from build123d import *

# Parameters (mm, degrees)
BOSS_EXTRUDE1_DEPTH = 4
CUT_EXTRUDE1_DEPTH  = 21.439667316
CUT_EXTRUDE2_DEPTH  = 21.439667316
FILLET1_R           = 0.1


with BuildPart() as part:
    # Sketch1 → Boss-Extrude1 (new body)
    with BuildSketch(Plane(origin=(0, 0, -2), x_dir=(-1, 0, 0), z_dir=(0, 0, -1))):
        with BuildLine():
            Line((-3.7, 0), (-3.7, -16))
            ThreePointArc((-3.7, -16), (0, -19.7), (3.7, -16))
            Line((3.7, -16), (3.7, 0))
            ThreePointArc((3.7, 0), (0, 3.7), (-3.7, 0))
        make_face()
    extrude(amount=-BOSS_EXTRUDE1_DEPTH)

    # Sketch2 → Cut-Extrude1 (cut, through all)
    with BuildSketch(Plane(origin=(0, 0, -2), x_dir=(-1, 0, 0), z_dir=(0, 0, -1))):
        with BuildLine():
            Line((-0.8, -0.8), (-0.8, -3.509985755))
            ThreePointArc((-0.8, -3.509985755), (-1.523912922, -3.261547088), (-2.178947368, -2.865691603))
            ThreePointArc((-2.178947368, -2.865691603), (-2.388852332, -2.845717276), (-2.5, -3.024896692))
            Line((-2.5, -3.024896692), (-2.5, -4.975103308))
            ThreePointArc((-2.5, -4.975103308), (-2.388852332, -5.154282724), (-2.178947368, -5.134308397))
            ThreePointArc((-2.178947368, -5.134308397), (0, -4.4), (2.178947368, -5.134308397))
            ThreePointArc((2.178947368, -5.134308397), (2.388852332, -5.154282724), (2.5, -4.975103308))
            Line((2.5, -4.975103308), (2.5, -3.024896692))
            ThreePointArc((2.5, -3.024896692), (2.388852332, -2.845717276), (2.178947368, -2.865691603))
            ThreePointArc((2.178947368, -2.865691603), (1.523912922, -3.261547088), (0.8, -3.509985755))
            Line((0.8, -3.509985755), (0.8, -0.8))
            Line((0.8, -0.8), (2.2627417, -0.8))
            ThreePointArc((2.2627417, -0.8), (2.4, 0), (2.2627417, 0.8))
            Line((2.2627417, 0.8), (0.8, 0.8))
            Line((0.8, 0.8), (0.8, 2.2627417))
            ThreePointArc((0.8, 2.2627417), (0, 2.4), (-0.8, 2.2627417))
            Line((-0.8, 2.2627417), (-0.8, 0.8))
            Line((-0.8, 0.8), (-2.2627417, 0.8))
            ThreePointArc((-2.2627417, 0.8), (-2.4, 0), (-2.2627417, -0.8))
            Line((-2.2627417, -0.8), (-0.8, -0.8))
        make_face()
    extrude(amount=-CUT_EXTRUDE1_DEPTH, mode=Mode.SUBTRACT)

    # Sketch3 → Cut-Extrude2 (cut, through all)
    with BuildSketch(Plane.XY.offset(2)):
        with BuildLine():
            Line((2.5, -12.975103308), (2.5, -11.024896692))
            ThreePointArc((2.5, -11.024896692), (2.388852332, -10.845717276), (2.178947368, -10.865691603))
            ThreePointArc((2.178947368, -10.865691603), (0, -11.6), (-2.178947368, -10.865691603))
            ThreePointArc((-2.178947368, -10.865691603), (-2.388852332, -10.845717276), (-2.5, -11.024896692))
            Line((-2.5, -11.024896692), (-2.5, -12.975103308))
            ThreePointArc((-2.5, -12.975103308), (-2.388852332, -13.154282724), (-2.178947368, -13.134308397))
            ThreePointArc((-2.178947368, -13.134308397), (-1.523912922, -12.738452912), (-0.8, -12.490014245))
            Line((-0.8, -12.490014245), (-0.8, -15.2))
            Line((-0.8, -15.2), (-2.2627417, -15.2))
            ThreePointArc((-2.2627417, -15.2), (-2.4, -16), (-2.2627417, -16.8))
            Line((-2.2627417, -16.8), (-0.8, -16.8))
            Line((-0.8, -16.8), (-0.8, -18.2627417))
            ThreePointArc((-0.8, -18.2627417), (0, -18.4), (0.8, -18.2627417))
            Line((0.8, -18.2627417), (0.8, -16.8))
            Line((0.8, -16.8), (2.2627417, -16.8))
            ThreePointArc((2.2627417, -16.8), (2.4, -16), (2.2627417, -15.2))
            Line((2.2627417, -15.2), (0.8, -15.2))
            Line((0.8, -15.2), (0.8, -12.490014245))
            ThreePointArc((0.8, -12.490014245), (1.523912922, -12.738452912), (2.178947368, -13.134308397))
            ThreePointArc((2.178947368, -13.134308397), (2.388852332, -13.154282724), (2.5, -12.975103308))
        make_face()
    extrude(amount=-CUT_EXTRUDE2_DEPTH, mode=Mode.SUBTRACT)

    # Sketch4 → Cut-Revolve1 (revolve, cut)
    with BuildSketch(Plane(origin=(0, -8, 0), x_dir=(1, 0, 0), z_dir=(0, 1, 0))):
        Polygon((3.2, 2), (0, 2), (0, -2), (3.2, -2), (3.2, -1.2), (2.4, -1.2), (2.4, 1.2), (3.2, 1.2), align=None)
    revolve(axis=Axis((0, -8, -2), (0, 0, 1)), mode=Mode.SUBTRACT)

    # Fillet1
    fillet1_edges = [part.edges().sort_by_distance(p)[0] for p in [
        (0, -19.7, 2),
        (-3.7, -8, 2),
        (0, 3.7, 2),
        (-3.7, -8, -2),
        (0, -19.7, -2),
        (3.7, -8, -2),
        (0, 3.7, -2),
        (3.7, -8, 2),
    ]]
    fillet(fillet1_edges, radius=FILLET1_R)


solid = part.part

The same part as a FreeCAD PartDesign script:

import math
import FreeCAD as App
import Part
import Sketcher
from FreeCAD import Vector


def edges_at(feature, points):
    """Names of the edges that pass closest to the given points."""
    edges = feature.Shape.Edges
    near = lambda p: min(range(len(edges)), key=lambda i: edges[i].distToShape(Part.Vertex(*p))[0])
    return sorted({f"Edge{near(p) + 1}" for p in points})

doc = App.newDocument("Part")
body = doc.addObject("PartDesign::Body", "Body")

# Sketch on XY plane
sketch1 = body.newObject("Sketcher::SketchObject", "Sketch")
sketch1.AttachmentSupport = (doc.getObject("XY_Plane"), [""])
sketch1.MapMode = "FlatFace"
sketch1.AttachmentOffset = App.Placement(Vector(0, 0, -2), App.Rotation())
sketch1.addGeometry([
    Part.LineSegment(Vector(3.7, 0, 0), Vector(3.7, -16, 0)),
    Part.ArcOfCircle(Part.Circle(Vector(0, -16, 0), Vector(0, 0, 1), 3.7), math.radians(180), math.radians(360)),
    Part.LineSegment(Vector(-3.7, -16, 0), Vector(-3.7, 0, 0)),
    Part.ArcOfCircle(Part.Circle(Vector(0, 0, 0), Vector(0, 0, 1), 3.7), math.radians(0), math.radians(180)),
], False)
sketch1.addConstraint([
    Sketcher.Constraint("Tangent", 0, 2, 1, 2),
    Sketcher.Constraint("Tangent", 1, 1, 2, 1),
    Sketcher.Constraint("Tangent", 2, 2, 3, 2),
    Sketcher.Constraint("Tangent", 3, 1, 0, 1),
    Sketcher.Constraint("Vertical", 0),
    Sketcher.Constraint("Vertical", 2),
    Sketcher.Constraint("Coincident", 3, 3, -1, 1),
    Sketcher.Constraint("Radius", 1, 3.7),
    Sketcher.Constraint("DistanceY", 0, 2, 0, 1, 16.0),
])
pad1 = body.newObject("PartDesign::Pad", "Pad")
pad1.Profile = sketch1
pad1.Length = 4

# Sketch on XY plane
sketch2 = body.newObject("Sketcher::SketchObject", "Sketch001")
sketch2.AttachmentSupport = (doc.getObject("XY_Plane"), [""])
sketch2.MapMode = "FlatFace"
sketch2.AttachmentOffset = App.Placement(Vector(0, 0, -2), App.Rotation())
sketch2.addGeometry([
    Part.LineSegment(Vector(0.8, -0.8, 0), Vector(0.8, -3.51, 0)),  # 0
    Part.ArcOfCircle(Part.Circle(Vector(0, 0, 0), Vector(0, 0, 1), 3.6), math.radians(-77), math.radians(-53)),  # 1
    Part.ArcOfCircle(Part.Circle(Vector(2.3, -3.02, 0), Vector(0, 0, 1), 0.2), math.radians(0), math.radians(127)),  # 2
    Part.LineSegment(Vector(2.5, -3.02, 0), Vector(2.5, -4.98, 0)),  # 3
    Part.ArcOfCircle(Part.Circle(Vector(2.3, -4.98, 0), Vector(0, 0, 1), 0.2), math.radians(-127), math.radians(0)),  # 4
    Part.ArcOfCircle(Part.Circle(Vector(0, -8, 0), Vector(0, 0, 1), 3.6), math.radians(53), math.radians(127)),  # 5
    Part.ArcOfCircle(Part.Circle(Vector(-2.3, -4.98, 0), Vector(0, 0, 1), 0.2), math.radians(180), math.radians(307)),  # 6
    Part.LineSegment(Vector(-2.5, -4.98, 0), Vector(-2.5, -3.02, 0)),  # 7
    Part.ArcOfCircle(Part.Circle(Vector(-2.3, -3.02, 0), Vector(0, 0, 1), 0.2), math.radians(53), math.radians(180)),  # 8
    Part.ArcOfCircle(Part.Circle(Vector(0, 0, 0), Vector(0, 0, 1), 3.6), math.radians(-127), math.radians(-103)),  # 9
    Part.LineSegment(Vector(-0.8, -3.51, 0), Vector(-0.8, -0.8, 0)),  # 10
    Part.LineSegment(Vector(-0.8, -0.8, 0), Vector(-2.26, -0.8, 0)),  # 11
    Part.ArcOfCircle(Part.Circle(Vector(0, 0, 0), Vector(0, 0, 1), 2.4), math.radians(161), math.radians(199)),  # 12
    Part.LineSegment(Vector(-2.26, 0.8, 0), Vector(-0.8, 0.8, 0)),  # 13
    Part.LineSegment(Vector(-0.8, 0.8, 0), Vector(-0.8, 2.26, 0)),  # 14
    Part.ArcOfCircle(Part.Circle(Vector(0, 0, 0), Vector(0, 0, 1), 2.4), math.radians(71), math.radians(109)),  # 15
    Part.LineSegment(Vector(0.8, 2.26, 0), Vector(0.8, 0.8, 0)),  # 16
    Part.LineSegment(Vector(0.8, 0.8, 0), Vector(2.26, 0.8, 0)),  # 17
    Part.ArcOfCircle(Part.Circle(Vector(0, 0, 0), Vector(0, 0, 1), 2.4), math.radians(-19), math.radians(19)),  # 18
    Part.LineSegment(Vector(2.26, -0.8, 0), Vector(0.8, -0.8, 0)),  # 19
], False)
sketch2.addConstraint([
    Sketcher.Constraint("Coincident", 0, 2, 1, 1),
    Sketcher.Constraint("Tangent", 1, 2, 2, 2),
    Sketcher.Constraint("Tangent", 2, 1, 3, 1),
    Sketcher.Constraint("Tangent", 3, 2, 4, 2),
    Sketcher.Constraint("Tangent", 4, 1, 5, 1),
    Sketcher.Constraint("Tangent", 5, 2, 6, 2),
    Sketcher.Constraint("Tangent", 6, 1, 7, 1),
    Sketcher.Constraint("Tangent", 7, 2, 8, 2),
    Sketcher.Constraint("Tangent", 8, 1, 9, 1),
    Sketcher.Constraint("Coincident", 9, 2, 10, 1),
    Sketcher.Constraint("Coincident", 10, 2, 11, 1),
    Sketcher.Constraint("Coincident", 11, 2, 12, 2),
    Sketcher.Constraint("Coincident", 12, 1, 13, 1),
    Sketcher.Constraint("Coincident", 13, 2, 14, 1),
    Sketcher.Constraint("Coincident", 14, 2, 15, 2),
    Sketcher.Constraint("Coincident", 15, 1, 16, 1),
    Sketcher.Constraint("Coincident", 16, 2, 17, 1),
    Sketcher.Constraint("Coincident", 17, 2, 18, 2),
    Sketcher.Constraint("Coincident", 18, 1, 19, 1),
    Sketcher.Constraint("Coincident", 19, 2, 0, 1),
    Sketcher.Constraint("Vertical", 0),
    Sketcher.Constraint("Vertical", 3),
    Sketcher.Constraint("Vertical", 7),
    Sketcher.Constraint("Vertical", 10),
    Sketcher.Constraint("Horizontal", 11),
    Sketcher.Constraint("Horizontal", 13),
    Sketcher.Constraint("Vertical", 14),
    Sketcher.Constraint("Vertical", 16),
    Sketcher.Constraint("Horizontal", 17),
    Sketcher.Constraint("Horizontal", 19),
    Sketcher.Constraint("Coincident", 1, 3, -1, 1),
    Sketcher.Constraint("Coincident", 9, 3, -1, 1),
    Sketcher.Constraint("Coincident", 12, 3, -1, 1),
    Sketcher.Constraint("Coincident", 15, 3, -1, 1),
    Sketcher.Constraint("Coincident", 18, 3, -1, 1),
    Sketcher.Constraint("Equal", 2, 4),
    Sketcher.Constraint("Equal", 1, 5),
    Sketcher.Constraint("Equal", 4, 6),
    Sketcher.Constraint("Equal", 6, 8),
    Sketcher.Constraint("Equal", 5, 9),
    Sketcher.Constraint("Equal", 12, 15),
    Sketcher.Constraint("Equal", 15, 18),
    Sketcher.Constraint("Symmetric", 10, 2, 16, 2, -1, 1),
    Sketcher.Constraint("Symmetric", 13, 2, 19, 2, -1, 1),
    Sketcher.Constraint("Symmetric", 4, 3, 6, 3, -2),
    Sketcher.Constraint("Symmetric", 13, 2, 16, 2, -2),
    Sketcher.Constraint("Equal", 19, 14),
    Sketcher.Constraint("Radius", 1, 3.6),
    Sketcher.Constraint("Radius", 2, 0.2),
    Sketcher.Constraint("Radius", 12, 2.4),
    Sketcher.Constraint("DistanceY", 5, 3, -1, 1, 8.0),
    Sketcher.Constraint("DistanceX", -1, 1, 2, 3, 2.3),
    Sketcher.Constraint("DistanceX", -1, 1, 0, 2, 0.8),
])
pocket1 = body.newObject("PartDesign::Pocket", "Pocket")
pocket1.Profile = sketch2
pocket1.Type = "ThroughAll"
pocket1.Reversed = True

# Sketch on XY plane
sketch3 = body.newObject("Sketcher::SketchObject", "Sketch002")
sketch3.AttachmentSupport = (doc.getObject("XY_Plane"), [""])
sketch3.MapMode = "FlatFace"
sketch3.AttachmentOffset = App.Placement(Vector(0, 0, 2), App.Rotation())
sketch3.addGeometry([
    Part.LineSegment(Vector(2.5, -12.98, 0), Vector(2.5, -11.02, 0)),  # 0
    Part.ArcOfCircle(Part.Circle(Vector(2.3, -11.02, 0), Vector(0, 0, 1), 0.2), math.radians(0), math.radians(127)),  # 1
    Part.ArcOfCircle(Part.Circle(Vector(0, -8, 0), Vector(0, 0, 1), 3.6), math.radians(-127), math.radians(-53)),  # 2
    Part.ArcOfCircle(Part.Circle(Vector(-2.3, -11.02, 0), Vector(0, 0, 1), 0.2), math.radians(53), math.radians(180)),  # 3
    Part.LineSegment(Vector(-2.5, -11.02, 0), Vector(-2.5, -12.98, 0)),  # 4
    Part.ArcOfCircle(Part.Circle(Vector(-2.3, -12.98, 0), Vector(0, 0, 1), 0.2), math.radians(180), math.radians(307)),  # 5
    Part.ArcOfCircle(Part.Circle(Vector(0, -16, 0), Vector(0, 0, 1), 3.6), math.radians(103), math.radians(127)),  # 6
    Part.LineSegment(Vector(-0.8, -12.49, 0), Vector(-0.8, -15.2, 0)),  # 7
    Part.LineSegment(Vector(-0.8, -15.2, 0), Vector(-2.26, -15.2, 0)),  # 8
    Part.ArcOfCircle(Part.Circle(Vector(0, -16, 0), Vector(0, 0, 1), 2.4), math.radians(161), math.radians(199)),  # 9
    Part.LineSegment(Vector(-2.26, -16.8, 0), Vector(-0.8, -16.8, 0)),  # 10
    Part.LineSegment(Vector(-0.8, -16.8, 0), Vector(-0.8, -18.26, 0)),  # 11
    Part.ArcOfCircle(Part.Circle(Vector(0, -16, 0), Vector(0, 0, 1), 2.4), math.radians(-109), math.radians(-71)),  # 12
    Part.LineSegment(Vector(0.8, -18.26, 0), Vector(0.8, -16.8, 0)),  # 13
    Part.LineSegment(Vector(0.8, -16.8, 0), Vector(2.26, -16.8, 0)),  # 14
    Part.ArcOfCircle(Part.Circle(Vector(0, -16, 0), Vector(0, 0, 1), 2.4), math.radians(-19), math.radians(19)),  # 15
    Part.LineSegment(Vector(2.26, -15.2, 0), Vector(0.8, -15.2, 0)),  # 16
    Part.LineSegment(Vector(0.8, -15.2, 0), Vector(0.8, -12.49, 0)),  # 17
    Part.ArcOfCircle(Part.Circle(Vector(0, -16, 0), Vector(0, 0, 1), 3.6), math.radians(53), math.radians(77)),  # 18
    Part.ArcOfCircle(Part.Circle(Vector(2.3, -12.98, 0), Vector(0, 0, 1), 0.2), math.radians(-127), math.radians(0)),  # 19
], False)
sketch3.addConstraint([
    Sketcher.Constraint("Tangent", 0, 2, 1, 1),
    Sketcher.Constraint("Tangent", 1, 2, 2, 2),
    Sketcher.Constraint("Tangent", 2, 1, 3, 1),
    Sketcher.Constraint("Tangent", 3, 2, 4, 1),
    Sketcher.Constraint("Tangent", 4, 2, 5, 1),
    Sketcher.Constraint("Tangent", 5, 2, 6, 2),
    Sketcher.Constraint("Coincident", 6, 1, 7, 1),
    Sketcher.Constraint("Coincident", 7, 2, 8, 1),
    Sketcher.Constraint("Coincident", 8, 2, 9, 1),
    Sketcher.Constraint("Coincident", 9, 2, 10, 1),
    Sketcher.Constraint("Coincident", 10, 2, 11, 1),
    Sketcher.Constraint("Coincident", 11, 2, 12, 1),
    Sketcher.Constraint("Coincident", 12, 2, 13, 1),
    Sketcher.Constraint("Coincident", 13, 2, 14, 1),
    Sketcher.Constraint("Coincident", 14, 2, 15, 1),
    Sketcher.Constraint("Coincident", 15, 2, 16, 1),
    Sketcher.Constraint("Coincident", 16, 2, 17, 1),
    Sketcher.Constraint("Coincident", 17, 2, 18, 2),
    Sketcher.Constraint("Tangent", 18, 1, 19, 1),
    Sketcher.Constraint("Tangent", 19, 2, 0, 1),
    Sketcher.Constraint("Vertical", 0),
    Sketcher.Constraint("Vertical", 4),
    Sketcher.Constraint("Vertical", 7),
    Sketcher.Constraint("Horizontal", 8),
    Sketcher.Constraint("Horizontal", 10),
    Sketcher.Constraint("Vertical", 11),
    Sketcher.Constraint("Vertical", 13),
    Sketcher.Constraint("Horizontal", 14),
    Sketcher.Constraint("Horizontal", 16),
    Sketcher.Constraint("Vertical", 17),
    Sketcher.Constraint("Coincident", 9, 3, 6, 3),
    Sketcher.Constraint("Coincident", 12, 3, 6, 3),
    Sketcher.Constraint("Coincident", 15, 3, 6, 3),
    Sketcher.Constraint("Coincident", 18, 3, 6, 3),
    Sketcher.Constraint("Equal", 1, 3),
    Sketcher.Constraint("Equal", 3, 5),
    Sketcher.Constraint("Equal", 2, 6),
    Sketcher.Constraint("Equal", 9, 12),
    Sketcher.Constraint("Equal", 12, 15),
    Sketcher.Constraint("Equal", 6, 18),
    Sketcher.Constraint("Equal", 5, 19),
    Sketcher.Constraint("Symmetric", 1, 3, 3, 3, -2),
    Sketcher.Constraint("Symmetric", 11, 2, 12, 2, -2),
    Sketcher.Constraint("Symmetric", 7, 2, 16, 2, -2),
    Sketcher.Constraint("Horizontal", 10, 2, 13, 2),
    Sketcher.Constraint("Vertical", 8, 2, 9, 2),
    Sketcher.Constraint("Vertical", 7, 2, 10, 2),
    Sketcher.Constraint("Equal", 16, 11),
    Sketcher.Constraint("Radius", 1, 0.2),
    Sketcher.Constraint("Radius", 2, 3.6),
    Sketcher.Constraint("Radius", 9, 2.4),
    Sketcher.Constraint("DistanceY", 2, 3, -1, 1, 8.0),
    Sketcher.Constraint("DistanceY", 6, 3, -1, 1, 16.0),
    Sketcher.Constraint("DistanceX", -1, 1, 1, 3, 2.3),
    Sketcher.Constraint("DistanceX", 6, 1, -1, 1, 0.8),
])
pocket2 = body.newObject("PartDesign::Pocket", "Pocket001")
pocket2.Profile = sketch3
pocket2.Type = "ThroughAll"

# Sketch on XZ plane
sketch4 = body.newObject("Sketcher::SketchObject", "Sketch003")
sketch4.AttachmentSupport = (doc.getObject("XZ_Plane"), [""])
sketch4.MapMode = "FlatFace"
sketch4.AttachmentOffset = App.Placement(Vector(0, 0, 8), App.Rotation())
sketch4.addGeometry([
    Part.LineSegment(Vector(3.2, -2, 0), Vector(0, -2, 0)),  # 0
    Part.LineSegment(Vector(0, -2, 0), Vector(0, 2, 0)),  # 1
    Part.LineSegment(Vector(0, 2, 0), Vector(3.2, 2, 0)),  # 2
    Part.LineSegment(Vector(3.2, 2, 0), Vector(3.2, 1.2, 0)),  # 3
    Part.LineSegment(Vector(3.2, 1.2, 0), Vector(2.4, 1.2, 0)),  # 4
    Part.LineSegment(Vector(2.4, 1.2, 0), Vector(2.4, -1.2, 0)),  # 5
    Part.LineSegment(Vector(2.4, -1.2, 0), Vector(3.2, -1.2, 0)),  # 6
    Part.LineSegment(Vector(3.2, -1.2, 0), Vector(3.2, -2, 0)),  # 7
], False)
sketch4.addConstraint([
    Sketcher.Constraint("Coincident", 0, 2, 1, 1),
    Sketcher.Constraint("Coincident", 1, 2, 2, 1),
    Sketcher.Constraint("Coincident", 2, 2, 3, 1),
    Sketcher.Constraint("Coincident", 3, 2, 4, 1),
    Sketcher.Constraint("Coincident", 4, 2, 5, 1),
    Sketcher.Constraint("Coincident", 5, 2, 6, 1),
    Sketcher.Constraint("Coincident", 6, 2, 7, 1),
    Sketcher.Constraint("Coincident", 7, 2, 0, 1),
    Sketcher.Constraint("Horizontal", 0),
    Sketcher.Constraint("Vertical", 1),
    Sketcher.Constraint("Horizontal", 2),
    Sketcher.Constraint("Vertical", 3),
    Sketcher.Constraint("Horizontal", 4),
    Sketcher.Constraint("Vertical", 5),
    Sketcher.Constraint("Horizontal", 6),
    Sketcher.Constraint("Vertical", 7),
    Sketcher.Constraint("Symmetric", 0, 2, 1, 2, -1, 1),
    Sketcher.Constraint("Symmetric", 3, 2, 6, 2, -1),
    Sketcher.Constraint("Equal", 6, 3),
    Sketcher.Constraint("DistanceY", 1, 1, 1, 2, 4.0),
    Sketcher.Constraint("DistanceX", 0, 2, 0, 1, 3.2),
    Sketcher.Constraint("DistanceX", 4, 2, 4, 1, 0.8),
])
groove = body.newObject("PartDesign::Groove", "Groove")
groove.Profile = sketch4
groove.ReferenceAxis = (sketch4, ["V_Axis"])
groove.Angle = 360
doc.recompute()

fillet = body.newObject("PartDesign::Fillet", "Fillet")
fillet.Base = (groove, edges_at(groove, [
    (0, -19.7, 2),
    (-3.7, -8, 2),
    (0, 3.7, 2),
    (-3.7, -8, -2),
    (0, -19.7, -2),
    (3.7, -8, -2),
    (0, 3.7, -2),
    (3.7, -8, 2),
]))
fillet.Radius = 0.1

doc.recompute()
